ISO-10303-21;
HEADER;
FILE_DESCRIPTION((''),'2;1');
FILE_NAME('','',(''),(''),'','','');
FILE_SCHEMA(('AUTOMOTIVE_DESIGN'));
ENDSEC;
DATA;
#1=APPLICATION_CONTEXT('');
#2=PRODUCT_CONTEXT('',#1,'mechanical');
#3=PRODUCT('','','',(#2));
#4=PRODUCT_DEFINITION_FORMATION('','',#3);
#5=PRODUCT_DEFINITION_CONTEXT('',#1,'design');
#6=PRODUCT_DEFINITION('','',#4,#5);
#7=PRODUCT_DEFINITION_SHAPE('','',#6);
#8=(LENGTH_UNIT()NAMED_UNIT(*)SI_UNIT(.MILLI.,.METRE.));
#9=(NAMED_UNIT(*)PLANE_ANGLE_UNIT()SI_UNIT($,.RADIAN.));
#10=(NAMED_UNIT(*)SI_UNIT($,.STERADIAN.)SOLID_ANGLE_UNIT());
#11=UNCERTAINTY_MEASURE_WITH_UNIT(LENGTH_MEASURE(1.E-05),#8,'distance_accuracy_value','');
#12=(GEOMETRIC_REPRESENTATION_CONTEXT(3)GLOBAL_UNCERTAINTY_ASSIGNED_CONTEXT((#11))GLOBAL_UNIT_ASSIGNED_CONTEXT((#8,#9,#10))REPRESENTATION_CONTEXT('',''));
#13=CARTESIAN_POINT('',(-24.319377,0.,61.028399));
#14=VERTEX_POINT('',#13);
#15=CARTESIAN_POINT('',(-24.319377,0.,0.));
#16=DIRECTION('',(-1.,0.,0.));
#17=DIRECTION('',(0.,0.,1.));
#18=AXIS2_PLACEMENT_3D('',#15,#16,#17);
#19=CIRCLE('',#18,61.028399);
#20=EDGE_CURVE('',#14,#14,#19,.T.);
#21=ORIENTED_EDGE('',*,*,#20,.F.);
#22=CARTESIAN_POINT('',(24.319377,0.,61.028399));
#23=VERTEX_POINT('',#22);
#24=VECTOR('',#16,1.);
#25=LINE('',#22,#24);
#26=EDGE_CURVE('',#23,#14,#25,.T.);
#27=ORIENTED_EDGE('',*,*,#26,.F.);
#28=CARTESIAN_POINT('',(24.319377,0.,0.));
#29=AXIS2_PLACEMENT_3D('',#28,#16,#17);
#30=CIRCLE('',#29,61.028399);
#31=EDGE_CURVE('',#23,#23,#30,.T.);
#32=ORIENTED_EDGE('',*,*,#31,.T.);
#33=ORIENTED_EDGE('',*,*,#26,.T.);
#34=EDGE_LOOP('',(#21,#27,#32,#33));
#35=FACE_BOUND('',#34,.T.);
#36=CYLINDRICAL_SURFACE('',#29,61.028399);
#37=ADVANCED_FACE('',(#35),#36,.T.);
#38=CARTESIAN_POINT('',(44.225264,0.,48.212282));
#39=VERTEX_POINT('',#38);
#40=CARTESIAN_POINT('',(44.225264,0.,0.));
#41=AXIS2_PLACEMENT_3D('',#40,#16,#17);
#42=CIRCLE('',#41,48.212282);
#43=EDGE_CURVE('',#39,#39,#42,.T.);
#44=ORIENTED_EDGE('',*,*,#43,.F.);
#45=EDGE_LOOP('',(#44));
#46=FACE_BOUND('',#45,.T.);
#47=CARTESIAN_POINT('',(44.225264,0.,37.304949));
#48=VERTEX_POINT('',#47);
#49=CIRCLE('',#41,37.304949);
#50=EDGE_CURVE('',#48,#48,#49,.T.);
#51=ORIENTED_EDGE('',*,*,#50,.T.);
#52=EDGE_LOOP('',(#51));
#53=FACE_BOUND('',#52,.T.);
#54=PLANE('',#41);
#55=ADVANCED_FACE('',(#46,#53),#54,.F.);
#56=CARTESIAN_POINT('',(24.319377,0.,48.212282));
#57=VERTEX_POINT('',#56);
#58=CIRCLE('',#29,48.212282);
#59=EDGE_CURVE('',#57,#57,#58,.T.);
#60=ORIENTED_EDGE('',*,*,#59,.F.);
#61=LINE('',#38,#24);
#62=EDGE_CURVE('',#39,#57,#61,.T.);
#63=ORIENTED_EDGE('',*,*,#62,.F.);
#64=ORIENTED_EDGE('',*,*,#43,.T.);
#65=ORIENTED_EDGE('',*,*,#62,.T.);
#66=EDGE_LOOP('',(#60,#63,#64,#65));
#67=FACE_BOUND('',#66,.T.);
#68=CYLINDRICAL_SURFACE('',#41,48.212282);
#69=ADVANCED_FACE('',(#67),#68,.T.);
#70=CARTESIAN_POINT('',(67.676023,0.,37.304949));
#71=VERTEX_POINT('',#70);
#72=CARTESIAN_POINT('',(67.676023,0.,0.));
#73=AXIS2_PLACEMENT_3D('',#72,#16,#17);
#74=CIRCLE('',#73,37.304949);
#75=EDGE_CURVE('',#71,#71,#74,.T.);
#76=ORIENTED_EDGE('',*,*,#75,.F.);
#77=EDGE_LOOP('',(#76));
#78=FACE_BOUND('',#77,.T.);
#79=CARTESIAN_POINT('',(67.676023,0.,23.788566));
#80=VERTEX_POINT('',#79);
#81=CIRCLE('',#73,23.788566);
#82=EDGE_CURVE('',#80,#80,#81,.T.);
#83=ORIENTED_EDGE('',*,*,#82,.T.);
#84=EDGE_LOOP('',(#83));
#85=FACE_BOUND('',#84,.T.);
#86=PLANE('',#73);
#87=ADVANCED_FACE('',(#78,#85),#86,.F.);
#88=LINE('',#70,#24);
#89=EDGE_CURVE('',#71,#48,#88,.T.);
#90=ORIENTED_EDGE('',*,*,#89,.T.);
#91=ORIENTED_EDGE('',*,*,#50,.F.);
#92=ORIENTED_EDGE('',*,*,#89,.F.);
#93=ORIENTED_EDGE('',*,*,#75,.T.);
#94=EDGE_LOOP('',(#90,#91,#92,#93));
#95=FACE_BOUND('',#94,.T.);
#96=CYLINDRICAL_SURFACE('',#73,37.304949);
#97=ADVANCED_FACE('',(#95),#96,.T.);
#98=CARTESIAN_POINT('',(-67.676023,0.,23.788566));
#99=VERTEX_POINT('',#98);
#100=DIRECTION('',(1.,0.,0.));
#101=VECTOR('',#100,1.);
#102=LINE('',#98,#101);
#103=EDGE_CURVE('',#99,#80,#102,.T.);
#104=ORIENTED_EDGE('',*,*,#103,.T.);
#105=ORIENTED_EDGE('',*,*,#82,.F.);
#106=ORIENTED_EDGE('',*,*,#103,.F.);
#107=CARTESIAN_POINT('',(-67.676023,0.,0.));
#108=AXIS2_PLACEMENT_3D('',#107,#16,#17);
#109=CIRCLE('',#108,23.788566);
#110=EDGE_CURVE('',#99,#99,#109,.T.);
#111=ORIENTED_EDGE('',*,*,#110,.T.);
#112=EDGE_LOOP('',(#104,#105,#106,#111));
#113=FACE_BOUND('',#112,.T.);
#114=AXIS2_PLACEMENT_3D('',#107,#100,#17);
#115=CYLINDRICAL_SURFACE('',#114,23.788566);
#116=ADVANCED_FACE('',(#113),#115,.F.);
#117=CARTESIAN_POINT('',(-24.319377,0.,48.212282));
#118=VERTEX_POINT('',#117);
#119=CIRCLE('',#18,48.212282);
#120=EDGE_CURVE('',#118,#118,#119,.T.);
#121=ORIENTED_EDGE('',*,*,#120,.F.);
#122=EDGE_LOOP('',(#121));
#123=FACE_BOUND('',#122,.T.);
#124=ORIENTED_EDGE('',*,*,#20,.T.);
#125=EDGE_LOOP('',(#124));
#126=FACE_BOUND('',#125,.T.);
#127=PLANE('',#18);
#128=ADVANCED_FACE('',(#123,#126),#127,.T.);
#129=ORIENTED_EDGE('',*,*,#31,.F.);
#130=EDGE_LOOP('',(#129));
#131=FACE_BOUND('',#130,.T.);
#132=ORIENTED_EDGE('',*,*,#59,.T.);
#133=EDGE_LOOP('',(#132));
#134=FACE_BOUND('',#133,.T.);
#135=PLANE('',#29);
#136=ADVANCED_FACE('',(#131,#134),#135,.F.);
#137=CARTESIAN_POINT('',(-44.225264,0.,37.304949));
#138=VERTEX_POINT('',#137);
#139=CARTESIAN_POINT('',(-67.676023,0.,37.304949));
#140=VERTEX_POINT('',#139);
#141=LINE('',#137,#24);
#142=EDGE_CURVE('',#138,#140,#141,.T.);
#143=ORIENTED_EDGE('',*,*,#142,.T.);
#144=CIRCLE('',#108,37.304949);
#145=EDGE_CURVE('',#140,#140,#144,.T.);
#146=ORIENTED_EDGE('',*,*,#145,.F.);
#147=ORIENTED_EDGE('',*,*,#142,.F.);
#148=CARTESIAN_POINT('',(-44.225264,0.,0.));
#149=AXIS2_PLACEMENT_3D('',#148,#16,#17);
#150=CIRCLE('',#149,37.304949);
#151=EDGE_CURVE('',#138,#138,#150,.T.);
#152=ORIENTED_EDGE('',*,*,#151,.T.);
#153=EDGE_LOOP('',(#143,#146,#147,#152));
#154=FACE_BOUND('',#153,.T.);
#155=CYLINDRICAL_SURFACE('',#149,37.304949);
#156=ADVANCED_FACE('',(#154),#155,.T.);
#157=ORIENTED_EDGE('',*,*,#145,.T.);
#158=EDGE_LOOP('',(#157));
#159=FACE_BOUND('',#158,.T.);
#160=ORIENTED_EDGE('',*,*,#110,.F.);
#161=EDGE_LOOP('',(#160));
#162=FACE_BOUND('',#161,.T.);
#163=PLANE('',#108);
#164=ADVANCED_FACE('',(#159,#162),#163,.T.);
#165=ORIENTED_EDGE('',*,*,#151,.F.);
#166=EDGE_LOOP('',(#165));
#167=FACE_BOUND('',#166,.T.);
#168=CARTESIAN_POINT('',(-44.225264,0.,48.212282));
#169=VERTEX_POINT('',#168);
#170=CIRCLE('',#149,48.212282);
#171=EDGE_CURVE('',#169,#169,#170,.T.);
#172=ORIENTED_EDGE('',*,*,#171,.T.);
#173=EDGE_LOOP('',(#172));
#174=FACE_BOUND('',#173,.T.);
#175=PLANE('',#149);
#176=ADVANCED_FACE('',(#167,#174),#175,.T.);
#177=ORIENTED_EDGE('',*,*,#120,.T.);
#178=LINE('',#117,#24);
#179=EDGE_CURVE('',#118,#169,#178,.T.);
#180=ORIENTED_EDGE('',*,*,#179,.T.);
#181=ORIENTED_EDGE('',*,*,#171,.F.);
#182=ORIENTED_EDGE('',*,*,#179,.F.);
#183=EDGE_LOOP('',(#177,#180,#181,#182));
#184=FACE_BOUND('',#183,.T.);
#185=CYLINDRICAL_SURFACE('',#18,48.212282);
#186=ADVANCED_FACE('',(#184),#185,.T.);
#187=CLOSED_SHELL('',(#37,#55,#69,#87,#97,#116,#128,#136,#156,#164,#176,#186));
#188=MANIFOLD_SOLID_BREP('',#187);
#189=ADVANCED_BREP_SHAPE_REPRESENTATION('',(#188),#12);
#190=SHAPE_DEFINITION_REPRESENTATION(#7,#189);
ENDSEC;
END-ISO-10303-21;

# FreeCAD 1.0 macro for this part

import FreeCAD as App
import Part
import Sketcher
from FreeCAD import Vector
Q = App.Units.Quantity

doc = App.newDocument("Part")
params = doc.addObject("Spreadsheet::Sheet", "Params")
for row, (alias, value) in enumerate([
    ("revolution_angle", "360 deg"),
], start=1):
    params.set(f"A{row}", alias)
    params.set(f"B{row}", "=" + value)
    params.setAlias(f"B{row}", alias)

body = doc.addObject("PartDesign::Body", "Body")

# Sketch on XZ plane
sketch1 = body.newObject("Sketcher::SketchObject", "Sketch")
sketch1.AttachmentSupport = (doc.getObject("XZ_Plane"), [""])
sketch1.MapMode = "FlatFace"
sketch1.addGeometry([
    Part.LineSegment(Vector(24, 61, 0), Vector(-24, 61, 0)),  # 0
    Part.LineSegment(Vector(-24, 61, 0), Vector(-24, 48, 0)),  # 1
    Part.LineSegment(Vector(-24, 48, 0), Vector(-44, 48, 0)),  # 2
    Part.LineSegment(Vector(-44, 48, 0), Vector(-44, 37, 0)),  # 3
    Part.LineSegment(Vector(-44, 37, 0), Vector(-68, 37, 0)),  # 4
    Part.LineSegment(Vector(-68, 37, 0), Vector(-68, 24, 0)),  # 5
    Part.LineSegment(Vector(-68, 24, 0), Vector(68, 24, 0)),  # 6
    Part.LineSegment(Vector(68, 24, 0), Vector(68, 37, 0)),  # 7
    Part.LineSegment(Vector(68, 37, 0), Vector(44, 37, 0)),  # 8
    Part.LineSegment(Vector(44, 37, 0), Vector(44, 48, 0)),  # 9
    Part.LineSegment(Vector(44, 48, 0), Vector(24, 48, 0)),  # 10
    Part.LineSegment(Vector(24, 48, 0), Vector(24, 61, 0)),  # 11
], False)
sketch1.addConstraint([
    Sketcher.Constraint("Coincident", 0, 2, 1, 1),
    Sketcher.Constraint("Coincident", 1, 2, 2, 1),
    Sketcher.Constraint("Coincident", 2, 2, 3, 1),
    Sketcher.Constraint("Coincident", 3, 2, 4, 1),
    Sketcher.Constraint("Coincident", 4, 2, 5, 1),
    Sketcher.Constraint("Coincident", 5, 2, 6, 1),
    Sketcher.Constraint("Coincident", 6, 2, 7, 1),
    Sketcher.Constraint("Coincident", 7, 2, 8, 1),
    Sketcher.Constraint("Coincident", 8, 2, 9, 1),
    Sketcher.Constraint("Coincident", 9, 2, 10, 1),
    Sketcher.Constraint("Coincident", 10, 2, 11, 1),
    Sketcher.Constraint("Coincident", 11, 2, 0, 1),
    Sketcher.Constraint("Horizontal", 0),
    Sketcher.Constraint("Vertical", 1),
    Sketcher.Constraint("Horizontal", 2),
    Sketcher.Constraint("Vertical", 3),
    Sketcher.Constraint("Horizontal", 4),
    Sketcher.Constraint("Vertical", 5),
    Sketcher.Constraint("Horizontal", 6),
    Sketcher.Constraint("Vertical", 7),
    Sketcher.Constraint("Horizontal", 8),
    Sketcher.Constraint("Vertical", 9),
    Sketcher.Constraint("Horizontal", 10),
    Sketcher.Constraint("Vertical", 11),
    Sketcher.Constraint("Symmetric", 4, 2, 7, 2, -2),
    Sketcher.Constraint("Symmetric", 2, 2, 9, 2, -2),
    Sketcher.Constraint("Equal", 2, 10),
    Sketcher.Constraint("DistanceX", 4, 2, 4, 1, Q("23.450759 mm")),
    Sketcher.Constraint("DistanceY", -1, 1, 0, 2, Q("61.028399 mm")),
    Sketcher.Constraint("DistanceX", 1, 2, 6, 2, Q("91.9954 mm")),
    Sketcher.Constraint("DistanceX", 0, 2, 0, 1, Q("48.638754 mm")),
    Sketcher.Constraint("DistanceY", 1, 2, 1, 1, Q("12.816117 mm")),
    Sketcher.Constraint("DistanceY", 3, 2, 3, 1, Q("10.907333 mm")),
    Sketcher.Constraint("DistanceY", 5, 2, 5, 1, Q("13.516383 mm")),
])
revolution = body.newObject("PartDesign::Revolution", "Revolution")
revolution.Profile = sketch1
revolution.ReferenceAxis = (sketch1, ["H_Axis"])
revolution.setExpression("Angle", "Params.revolution_angle")

doc.recompute()
